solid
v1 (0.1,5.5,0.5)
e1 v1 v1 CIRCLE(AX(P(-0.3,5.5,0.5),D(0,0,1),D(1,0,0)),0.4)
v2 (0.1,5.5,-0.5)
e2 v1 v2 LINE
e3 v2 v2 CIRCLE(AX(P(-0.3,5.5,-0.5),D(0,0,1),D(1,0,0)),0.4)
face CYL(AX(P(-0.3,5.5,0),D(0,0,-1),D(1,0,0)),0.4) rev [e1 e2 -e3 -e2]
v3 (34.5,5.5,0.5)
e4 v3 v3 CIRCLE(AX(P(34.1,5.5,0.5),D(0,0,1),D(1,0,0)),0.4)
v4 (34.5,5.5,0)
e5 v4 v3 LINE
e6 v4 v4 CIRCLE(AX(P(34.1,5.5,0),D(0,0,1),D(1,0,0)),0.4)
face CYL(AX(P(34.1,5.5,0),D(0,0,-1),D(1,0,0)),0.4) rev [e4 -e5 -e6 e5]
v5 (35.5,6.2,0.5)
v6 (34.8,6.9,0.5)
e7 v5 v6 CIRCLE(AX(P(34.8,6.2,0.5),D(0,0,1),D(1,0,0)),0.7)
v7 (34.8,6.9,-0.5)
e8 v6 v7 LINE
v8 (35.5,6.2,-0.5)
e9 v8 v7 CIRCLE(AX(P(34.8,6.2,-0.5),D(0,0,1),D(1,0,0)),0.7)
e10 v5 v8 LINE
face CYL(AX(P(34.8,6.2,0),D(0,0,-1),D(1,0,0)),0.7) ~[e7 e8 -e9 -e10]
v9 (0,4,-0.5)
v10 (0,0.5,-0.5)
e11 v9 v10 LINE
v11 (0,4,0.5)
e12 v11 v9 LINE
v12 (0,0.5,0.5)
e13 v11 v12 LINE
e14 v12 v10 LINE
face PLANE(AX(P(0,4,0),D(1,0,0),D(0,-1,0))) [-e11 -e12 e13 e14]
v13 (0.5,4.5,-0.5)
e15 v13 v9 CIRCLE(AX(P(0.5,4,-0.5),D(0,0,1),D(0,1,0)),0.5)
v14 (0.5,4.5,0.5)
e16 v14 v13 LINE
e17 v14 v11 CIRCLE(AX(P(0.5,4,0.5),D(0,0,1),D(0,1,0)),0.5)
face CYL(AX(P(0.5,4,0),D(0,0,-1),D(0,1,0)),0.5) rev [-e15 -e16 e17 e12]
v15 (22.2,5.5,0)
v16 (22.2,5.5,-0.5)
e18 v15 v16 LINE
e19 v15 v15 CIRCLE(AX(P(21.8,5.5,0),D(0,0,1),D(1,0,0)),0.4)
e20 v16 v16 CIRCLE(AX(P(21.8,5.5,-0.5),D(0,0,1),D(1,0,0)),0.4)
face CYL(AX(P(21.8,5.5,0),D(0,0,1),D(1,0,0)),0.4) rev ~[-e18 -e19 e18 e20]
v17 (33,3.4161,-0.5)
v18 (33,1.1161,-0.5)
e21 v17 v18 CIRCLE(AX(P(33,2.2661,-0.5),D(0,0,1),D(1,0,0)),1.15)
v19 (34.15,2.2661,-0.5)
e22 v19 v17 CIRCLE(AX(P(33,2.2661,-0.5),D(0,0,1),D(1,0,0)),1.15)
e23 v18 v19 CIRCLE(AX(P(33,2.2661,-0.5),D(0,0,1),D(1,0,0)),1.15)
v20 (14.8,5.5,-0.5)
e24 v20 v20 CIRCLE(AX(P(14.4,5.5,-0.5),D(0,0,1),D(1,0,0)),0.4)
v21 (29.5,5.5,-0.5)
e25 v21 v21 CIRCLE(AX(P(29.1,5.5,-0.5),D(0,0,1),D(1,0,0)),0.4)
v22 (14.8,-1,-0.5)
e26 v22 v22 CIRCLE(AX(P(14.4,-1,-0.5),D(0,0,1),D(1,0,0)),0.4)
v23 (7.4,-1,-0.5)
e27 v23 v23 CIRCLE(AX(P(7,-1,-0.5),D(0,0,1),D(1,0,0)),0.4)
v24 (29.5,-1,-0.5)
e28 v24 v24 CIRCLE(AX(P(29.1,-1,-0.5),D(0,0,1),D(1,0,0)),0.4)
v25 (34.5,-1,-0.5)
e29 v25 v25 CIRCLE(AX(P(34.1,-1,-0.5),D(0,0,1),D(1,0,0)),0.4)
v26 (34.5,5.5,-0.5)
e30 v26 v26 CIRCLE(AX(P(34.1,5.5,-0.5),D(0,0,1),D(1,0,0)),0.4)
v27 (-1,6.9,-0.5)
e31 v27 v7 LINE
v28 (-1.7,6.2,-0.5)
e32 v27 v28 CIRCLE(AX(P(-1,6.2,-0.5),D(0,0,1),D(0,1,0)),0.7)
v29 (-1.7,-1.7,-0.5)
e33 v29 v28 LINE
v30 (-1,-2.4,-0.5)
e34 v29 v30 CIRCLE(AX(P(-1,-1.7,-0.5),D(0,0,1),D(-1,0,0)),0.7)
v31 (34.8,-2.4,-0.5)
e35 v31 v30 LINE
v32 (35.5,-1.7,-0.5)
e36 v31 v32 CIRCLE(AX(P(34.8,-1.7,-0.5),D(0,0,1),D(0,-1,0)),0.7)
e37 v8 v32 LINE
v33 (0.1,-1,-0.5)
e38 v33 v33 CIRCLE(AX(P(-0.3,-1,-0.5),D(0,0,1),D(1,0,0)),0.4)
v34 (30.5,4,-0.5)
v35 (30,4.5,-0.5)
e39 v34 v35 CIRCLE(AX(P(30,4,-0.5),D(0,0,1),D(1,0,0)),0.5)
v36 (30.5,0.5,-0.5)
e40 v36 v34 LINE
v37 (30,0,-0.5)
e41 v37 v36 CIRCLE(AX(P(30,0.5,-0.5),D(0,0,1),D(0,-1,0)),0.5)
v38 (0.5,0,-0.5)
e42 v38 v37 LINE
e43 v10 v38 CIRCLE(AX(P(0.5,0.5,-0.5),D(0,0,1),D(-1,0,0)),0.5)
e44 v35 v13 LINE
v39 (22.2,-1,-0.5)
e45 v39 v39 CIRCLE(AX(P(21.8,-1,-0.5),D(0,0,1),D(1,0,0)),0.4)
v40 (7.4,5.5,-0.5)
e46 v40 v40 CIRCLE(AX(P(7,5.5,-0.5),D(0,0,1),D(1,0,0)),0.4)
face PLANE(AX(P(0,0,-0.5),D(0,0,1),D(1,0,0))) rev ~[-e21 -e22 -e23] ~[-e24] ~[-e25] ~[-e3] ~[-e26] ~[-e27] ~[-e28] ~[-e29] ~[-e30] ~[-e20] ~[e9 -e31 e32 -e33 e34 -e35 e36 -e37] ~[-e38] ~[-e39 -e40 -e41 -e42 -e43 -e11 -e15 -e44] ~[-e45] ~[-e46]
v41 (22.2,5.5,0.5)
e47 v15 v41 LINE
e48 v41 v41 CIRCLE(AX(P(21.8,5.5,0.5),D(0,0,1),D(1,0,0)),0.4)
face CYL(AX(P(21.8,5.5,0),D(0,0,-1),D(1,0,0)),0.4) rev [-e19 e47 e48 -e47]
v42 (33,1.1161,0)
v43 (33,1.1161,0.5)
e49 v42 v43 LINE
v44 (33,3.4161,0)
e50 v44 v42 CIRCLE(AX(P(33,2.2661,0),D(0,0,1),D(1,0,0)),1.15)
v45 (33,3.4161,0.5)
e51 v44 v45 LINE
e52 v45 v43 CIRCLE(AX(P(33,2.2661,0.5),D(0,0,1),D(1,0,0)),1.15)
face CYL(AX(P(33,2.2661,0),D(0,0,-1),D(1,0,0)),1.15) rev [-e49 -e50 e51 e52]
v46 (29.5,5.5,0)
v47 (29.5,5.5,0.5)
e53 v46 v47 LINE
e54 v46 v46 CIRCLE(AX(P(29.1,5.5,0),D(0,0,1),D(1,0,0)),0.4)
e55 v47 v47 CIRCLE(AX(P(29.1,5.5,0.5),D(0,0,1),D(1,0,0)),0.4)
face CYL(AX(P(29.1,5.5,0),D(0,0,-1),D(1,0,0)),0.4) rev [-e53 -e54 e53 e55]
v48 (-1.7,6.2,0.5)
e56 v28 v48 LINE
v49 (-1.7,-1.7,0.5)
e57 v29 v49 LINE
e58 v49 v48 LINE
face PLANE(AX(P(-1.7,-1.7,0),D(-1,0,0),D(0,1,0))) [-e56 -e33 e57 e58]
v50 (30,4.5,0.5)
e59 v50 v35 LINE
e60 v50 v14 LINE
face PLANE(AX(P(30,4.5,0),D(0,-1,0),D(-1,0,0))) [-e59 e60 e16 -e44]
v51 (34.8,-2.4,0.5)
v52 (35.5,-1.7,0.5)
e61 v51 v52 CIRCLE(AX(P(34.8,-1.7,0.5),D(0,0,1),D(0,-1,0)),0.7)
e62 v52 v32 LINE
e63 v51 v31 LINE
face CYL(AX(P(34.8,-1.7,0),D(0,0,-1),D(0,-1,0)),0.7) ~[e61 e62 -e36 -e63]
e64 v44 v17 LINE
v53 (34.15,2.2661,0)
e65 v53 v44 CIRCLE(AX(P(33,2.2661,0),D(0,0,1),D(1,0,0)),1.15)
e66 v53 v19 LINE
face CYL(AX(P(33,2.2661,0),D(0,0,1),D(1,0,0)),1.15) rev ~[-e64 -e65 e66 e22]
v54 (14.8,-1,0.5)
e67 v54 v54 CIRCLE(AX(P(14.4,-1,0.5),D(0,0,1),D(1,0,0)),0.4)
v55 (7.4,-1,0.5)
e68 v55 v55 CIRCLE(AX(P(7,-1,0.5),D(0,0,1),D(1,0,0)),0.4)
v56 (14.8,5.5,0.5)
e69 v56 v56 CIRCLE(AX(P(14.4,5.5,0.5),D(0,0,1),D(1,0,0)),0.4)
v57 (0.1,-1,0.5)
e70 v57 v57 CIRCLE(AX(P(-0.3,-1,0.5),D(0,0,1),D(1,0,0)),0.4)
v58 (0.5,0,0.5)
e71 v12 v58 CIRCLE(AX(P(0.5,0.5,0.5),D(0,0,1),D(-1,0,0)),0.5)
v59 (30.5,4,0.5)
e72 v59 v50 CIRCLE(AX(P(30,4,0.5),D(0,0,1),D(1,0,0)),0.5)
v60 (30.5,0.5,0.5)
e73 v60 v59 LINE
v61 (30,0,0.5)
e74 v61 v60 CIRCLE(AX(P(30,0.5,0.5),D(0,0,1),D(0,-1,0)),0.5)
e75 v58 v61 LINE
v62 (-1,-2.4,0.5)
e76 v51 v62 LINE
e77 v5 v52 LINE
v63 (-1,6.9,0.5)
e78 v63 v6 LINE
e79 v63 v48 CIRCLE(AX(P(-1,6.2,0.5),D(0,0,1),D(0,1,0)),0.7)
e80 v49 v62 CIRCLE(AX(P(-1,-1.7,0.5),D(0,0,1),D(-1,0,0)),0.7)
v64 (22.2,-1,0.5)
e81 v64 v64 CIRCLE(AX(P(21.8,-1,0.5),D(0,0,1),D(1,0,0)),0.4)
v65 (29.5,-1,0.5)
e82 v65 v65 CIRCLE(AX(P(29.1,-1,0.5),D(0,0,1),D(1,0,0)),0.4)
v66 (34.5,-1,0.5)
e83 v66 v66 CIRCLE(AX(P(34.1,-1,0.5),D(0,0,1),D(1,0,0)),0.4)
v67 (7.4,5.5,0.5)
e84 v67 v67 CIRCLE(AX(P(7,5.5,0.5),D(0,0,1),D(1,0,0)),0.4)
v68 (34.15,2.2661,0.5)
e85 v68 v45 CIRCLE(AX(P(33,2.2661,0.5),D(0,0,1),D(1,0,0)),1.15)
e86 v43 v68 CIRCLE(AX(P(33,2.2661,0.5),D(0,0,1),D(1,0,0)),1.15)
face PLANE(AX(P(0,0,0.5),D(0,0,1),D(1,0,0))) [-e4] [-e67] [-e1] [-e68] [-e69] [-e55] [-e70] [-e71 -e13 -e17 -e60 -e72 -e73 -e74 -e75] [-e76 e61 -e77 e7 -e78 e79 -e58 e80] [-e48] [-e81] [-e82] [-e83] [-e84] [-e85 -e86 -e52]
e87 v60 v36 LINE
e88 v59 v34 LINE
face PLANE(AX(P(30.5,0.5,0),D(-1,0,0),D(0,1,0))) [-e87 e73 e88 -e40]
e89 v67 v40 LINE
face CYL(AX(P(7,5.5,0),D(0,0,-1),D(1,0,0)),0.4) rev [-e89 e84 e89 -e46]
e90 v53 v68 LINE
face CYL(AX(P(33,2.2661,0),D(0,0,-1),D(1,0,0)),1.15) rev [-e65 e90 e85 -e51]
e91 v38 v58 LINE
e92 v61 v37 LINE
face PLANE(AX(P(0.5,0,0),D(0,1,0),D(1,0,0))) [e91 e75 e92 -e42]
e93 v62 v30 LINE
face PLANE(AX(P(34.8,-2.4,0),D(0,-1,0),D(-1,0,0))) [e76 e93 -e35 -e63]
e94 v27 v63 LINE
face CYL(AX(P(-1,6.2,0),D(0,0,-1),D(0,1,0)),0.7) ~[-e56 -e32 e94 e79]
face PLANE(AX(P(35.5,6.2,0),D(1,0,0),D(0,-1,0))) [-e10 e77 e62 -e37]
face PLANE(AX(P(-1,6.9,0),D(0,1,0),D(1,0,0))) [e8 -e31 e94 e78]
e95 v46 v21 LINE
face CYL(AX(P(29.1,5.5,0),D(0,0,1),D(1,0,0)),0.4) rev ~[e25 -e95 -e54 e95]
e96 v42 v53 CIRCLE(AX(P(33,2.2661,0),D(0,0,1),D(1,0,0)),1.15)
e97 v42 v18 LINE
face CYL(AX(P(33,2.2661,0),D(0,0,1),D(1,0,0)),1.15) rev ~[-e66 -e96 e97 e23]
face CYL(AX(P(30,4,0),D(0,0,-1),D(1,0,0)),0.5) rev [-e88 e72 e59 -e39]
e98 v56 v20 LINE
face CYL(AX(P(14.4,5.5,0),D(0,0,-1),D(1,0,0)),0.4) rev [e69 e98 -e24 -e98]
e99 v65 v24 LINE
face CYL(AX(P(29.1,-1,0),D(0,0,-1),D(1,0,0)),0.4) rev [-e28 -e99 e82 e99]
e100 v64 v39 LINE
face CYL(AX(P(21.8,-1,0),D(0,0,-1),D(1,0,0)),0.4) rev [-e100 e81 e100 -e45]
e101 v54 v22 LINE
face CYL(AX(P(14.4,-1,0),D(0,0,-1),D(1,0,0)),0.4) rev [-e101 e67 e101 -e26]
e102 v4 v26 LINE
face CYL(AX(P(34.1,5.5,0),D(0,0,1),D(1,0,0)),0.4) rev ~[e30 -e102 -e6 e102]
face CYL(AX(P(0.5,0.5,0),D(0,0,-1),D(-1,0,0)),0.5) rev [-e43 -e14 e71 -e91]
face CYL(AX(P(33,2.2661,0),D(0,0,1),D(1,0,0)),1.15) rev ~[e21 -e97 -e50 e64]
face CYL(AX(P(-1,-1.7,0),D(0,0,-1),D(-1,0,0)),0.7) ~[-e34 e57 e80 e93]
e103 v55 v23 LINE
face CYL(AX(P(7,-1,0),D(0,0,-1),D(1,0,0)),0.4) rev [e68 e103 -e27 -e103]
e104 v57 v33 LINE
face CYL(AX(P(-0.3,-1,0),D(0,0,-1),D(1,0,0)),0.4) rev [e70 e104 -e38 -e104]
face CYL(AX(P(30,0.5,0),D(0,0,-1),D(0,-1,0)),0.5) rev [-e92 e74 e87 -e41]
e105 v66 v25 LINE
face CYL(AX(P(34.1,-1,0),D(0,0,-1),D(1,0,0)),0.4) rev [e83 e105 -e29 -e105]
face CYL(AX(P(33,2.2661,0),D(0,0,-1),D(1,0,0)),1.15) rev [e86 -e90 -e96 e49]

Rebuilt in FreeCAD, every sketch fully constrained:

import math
import FreeCAD as App
import Part
import Sketcher
from FreeCAD import Vector
Q = App.Units.Quantity

doc = App.newDocument("Part")
params = doc.addObject("Spreadsheet::Sheet", "Params")
for row, (alias, value) in enumerate([
    ("sketch1_diameter", "0.8 mm"),
    ("sketch1_diameter2", "2.3 mm"),
    ("sketch1_radius", "0.7 mm"),
    ("sketch1_radius2", "0.5 mm"),
    ("pad1_length", "1 mm"),
], start=1):
    params.set(f"A{row}", alias)
    params.set(f"B{row}", "=" + value)
    params.setAlias(f"B{row}", alias)

body = doc.addObject("PartDesign::Body", "Body")

# Sketch on XY plane
sketch1 = doc.addObject("Sketcher::SketchObject", "Sketch")
body.addObject(sketch1)
sketch1.AttachmentSupport = (doc.XY_Plane, [""])
sketch1.MapMode = "FlatFace"
sketch1.addGeometry([
    Part.LineSegment(Vector(34.8, 6.9, 0), Vector(-1, 6.9, 0)),  # 0
    Part.ArcOfCircle(Part.Circle(Vector(-1, 6.2, 0), Vector(0, 0, 1), 0.7), math.radians(90), math.radians(180)),  # 1
    Part.LineSegment(Vector(-1.7, 6.2, 0), Vector(-1.7, -1.7, 0)),  # 2
    Part.ArcOfCircle(Part.Circle(Vector(-1, -1.7, 0), Vector(0, 0, 1), 0.7), math.radians(180), math.radians(270)),  # 3
    Part.LineSegment(Vector(-1, -2.4, 0), Vector(34.8, -2.4, 0)),  # 4
    Part.ArcOfCircle(Part.Circle(Vector(34.8, -1.7, 0), Vector(0, 0, 1), 0.7), math.radians(-90), math.radians(0)),  # 5
    Part.LineSegment(Vector(35.5, -1.7, 0), Vector(35.5, 6.2, 0)),  # 6
    Part.ArcOfCircle(Part.Circle(Vector(34.8, 6.2, 0), Vector(0, 0, 1), 0.7), math.radians(0), math.radians(90)),  # 7
    Part.Circle(Vector(-0.3, -1, 0), Vector(0, 0, 1), 0.4),  # 8
    Part.Circle(Vector(7, -1, 0), Vector(0, 0, 1), 0.4),  # 9
    Part.Circle(Vector(14.4, -1, 0), Vector(0, 0, 1), 0.4),  # 10
    Part.Circle(Vector(21.8, -1, 0), Vector(0, 0, 1), 0.4),  # 11
    Part.Circle(Vector(29.1, -1, 0), Vector(0, 0, 1), 0.4),  # 12
    Part.Circle(Vector(34.1, -1, 0), Vector(0, 0, 1), 0.4),  # 13
    Part.LineSegment(Vector(30, 0, 0), Vector(0.5, 0, 0)),  # 14
    Part.ArcOfCircle(Part.Circle(Vector(0.5, 0.5, 0), Vector(0, 0, 1), 0.5), math.radians(180), math.radians(270)),  # 15
    Part.LineSegment(Vector(0, 0.5, 0), Vector(0, 4, 0)),  # 16
    Part.ArcOfCircle(Part.Circle(Vector(0.5, 4, 0), Vector(0, 0, 1), 0.5), math.radians(90), math.radians(180)),  # 17
    Part.LineSegment(Vector(0.5, 4.5, 0), Vector(30, 4.5, 0)),  # 18
    Part.ArcOfCircle(Part.Circle(Vector(30, 4, 0), Vector(0, 0, 1), 0.5), math.radians(0), math.radians(90)),  # 19
    Part.LineSegment(Vector(30.5, 4, 0), Vector(30.5, 0.5, 0)),  # 20
    Part.ArcOfCircle(Part.Circle(Vector(30, 0.5, 0), Vector(0, 0, 1), 0.5), math.radians(-90), math.radians(0)),  # 21
    Part.Circle(Vector(-0.3, 5.5, 0), Vector(0, 0, 1), 0.4),  # 22
    Part.Circle(Vector(7, 5.5, 0), Vector(0, 0, 1), 0.4),  # 23
    Part.Circle(Vector(14.4, 5.5, 0), Vector(0, 0, 1), 0.4),  # 24
    Part.Circle(Vector(33, 2.27, 0), Vector(0, 0, 1), 1.15),  # 25
    Part.Circle(Vector(21.8, 5.5, 0), Vector(0, 0, 1), 0.4),  # 26
    Part.Circle(Vector(29.1, 5.5, 0), Vector(0, 0, 1), 0.4),  # 27
    Part.Circle(Vector(34.1, 5.5, 0), Vector(0, 0, 1), 0.4),  # 28
], False)
sketch1.addConstraint([
    Sketcher.Constraint("Tangent", 0, 2, 1, 1),
    Sketcher.Constraint("Tangent", 1, 2, 2, 1),
    Sketcher.Constraint("Tangent", 2, 2, 3, 1),
    Sketcher.Constraint("Tangent", 3, 2, 4, 1),
    Sketcher.Constraint("Tangent", 4, 2, 5, 1),
    Sketcher.Constraint("Tangent", 5, 2, 6, 1),
    Sketcher.Constraint("Tangent", 6, 2, 7, 1),
    Sketcher.Constraint("Tangent", 7, 2, 0, 1),
    Sketcher.Constraint("Tangent", 14, 2, 15, 2),
    Sketcher.Constraint("Tangent", 15, 1, 16, 1),
    Sketcher.Constraint("Tangent", 16, 2, 17, 2),
    Sketcher.Constraint("Tangent", 17, 1, 18, 1),
    Sketcher.Constraint("Tangent", 18, 2, 19, 2),
    Sketcher.Constraint("Tangent", 19, 1, 20, 1),
    Sketcher.Constraint("Tangent", 20, 2, 21, 2),
    Sketcher.Constraint("Tangent", 21, 1, 14, 1),
    Sketcher.Constraint("Horizontal", 0),
    Sketcher.Constraint("Vertical", 2),
    Sketcher.Constraint("Horizontal", 4),
    Sketcher.Constraint("Vertical", 6),
    Sketcher.Constraint("Horizontal", 14),
    Sketcher.Constraint("Vertical", 16),
    Sketcher.Constraint("Horizontal", 18),
    Sketcher.Constraint("Vertical", 20),
    Sketcher.Constraint("Equal", 1, 3),
    Sketcher.Constraint("Equal", 3, 5),
    Sketcher.Constraint("Equal", 5, 7),
    Sketcher.Constraint("Equal", 8, 9),
    Sketcher.Constraint("Equal", 9, 10),
    Sketcher.Constraint("Equal", 10, 11),
    Sketcher.Constraint("Equal", 11, 12),
    Sketcher.Constraint("Equal", 12, 13),
    Sketcher.Constraint("Equal", 15, 17),
    Sketcher.Constraint("Equal", 17, 19),
    Sketcher.Constraint("Equal", 19, 21),
    Sketcher.Constraint("Equal", 13, 22),
    Sketcher.Constraint("Equal", 22, 23),
    Sketcher.Constraint("Equal", 23, 24),
    Sketcher.Constraint("Equal", 24, 26),
    Sketcher.Constraint("Equal", 26, 27),
    Sketcher.Constraint("Equal", 27, 28),
    Sketcher.Constraint("PointOnObject", 14, 2, -1),
    Sketcher.Constraint("PointOnObject", 15, 1, -2),
    Sketcher.Constraint("Horizontal", 8, 3, 9, 3),
    Sketcher.Constraint("Horizontal", 9, 3, 10, 3),
    Sketcher.Constraint("Horizontal", 10, 3, 11, 3),
    Sketcher.Constraint("Horizontal", 11, 3, 12, 3),
    Sketcher.Constraint("Horizontal", 12, 3, 13, 3),
    Sketcher.Constraint("Horizontal", 22, 3, 23, 3),
    Sketcher.Constraint("Horizontal", 23, 3, 24, 3),
    Sketcher.Constraint("Horizontal", 24, 3, 26, 3),
    Sketcher.Constraint("Horizontal", 26, 3, 27, 3),
    Sketcher.Constraint("Horizontal", 27, 3, 28, 3),
    Sketcher.Constraint("Vertical", 8, 3, 22, 3),
    Sketcher.Constraint("Vertical", 9, 3, 23, 3),
    Sketcher.Constraint("Vertical", 10, 3, 24, 3),
    Sketcher.Constraint("Vertical", 11, 3, 26, 3),
    Sketcher.Constraint("Vertical", 12, 3, 27, 3),
    Sketcher.Constraint("Vertical", 13, 3, 28, 3),
    Sketcher.Constraint("Diameter", 8, Q("0.8 mm")),
    Sketcher.Constraint("Diameter", 25, Q("2.3 mm")),
    Sketcher.Constraint("Radius", 1, Q("0.7 mm")),
    Sketcher.Constraint("Radius", 15, Q("0.5 mm")),
    Sketcher.Constraint("DistanceX", 12, 3, 13, 3, Q("5 mm")),
    Sketcher.Constraint("DistanceY", 8, 3, 17, 3, Q("5 mm")),
    Sketcher.Constraint("DistanceY", 15, 3, 22, 3, Q("5 mm")),
    Sketcher.Constraint("DistanceY", -1, 1, 17, 1, Q("4.5 mm")),
    Sketcher.Constraint("DistanceX", -1, 1, 19, 1, Q("30.5 mm")),
    Sketcher.Constraint("DistanceX", 3, 3, 8, 3, Q("0.7 mm")),
    Sketcher.Constraint("DistanceY", 3, 3, 8, 3, Q("0.7 mm")),
    Sketcher.Constraint("DistanceX", 13, 3, 5, 3, Q("0.7 mm")),
    Sketcher.Constraint("DistanceX", 11, 3, 13, 3, Q("12.3 mm")),
    Sketcher.Constraint("DistanceX", 10, 3, 13, 3, Q("19.7 mm")),
    Sketcher.Constraint("DistanceX", 8, 3, 15, 3, Q("0.8 mm")),
    Sketcher.Constraint("DistanceX", 15, 3, 9, 3, Q("6.5 mm")),
    Sketcher.Constraint("DistanceY", 22, 3, 1, 3, Q("0.7 mm")),
    Sketcher.Constraint("DistanceX", 25, 3, 5, 2, Q("2.5 mm")),
    Sketcher.Constraint("DistanceX", 21, 3, 5, 2, Q("5.5 mm")),
    Sketcher.Constraint("DistanceY", -1, 1, 25, 3, Q("2.266 mm")),
])
sketch1.setExpression("Constraints[59]", "Params.sketch1_diameter")
sketch1.setExpression("Constraints[60]", "Params.sketch1_diameter2")
sketch1.setExpression("Constraints[61]", "Params.sketch1_radius")
sketch1.setExpression("Constraints[62]", "Params.sketch1_radius2")
pad1 = doc.addObject("PartDesign::Pad", "Pad")
body.addObject(pad1)
pad1.Profile = sketch1
pad1.setExpression("Length", "Params.pad1_length")
pad1.Midplane = True

doc.recompute()
